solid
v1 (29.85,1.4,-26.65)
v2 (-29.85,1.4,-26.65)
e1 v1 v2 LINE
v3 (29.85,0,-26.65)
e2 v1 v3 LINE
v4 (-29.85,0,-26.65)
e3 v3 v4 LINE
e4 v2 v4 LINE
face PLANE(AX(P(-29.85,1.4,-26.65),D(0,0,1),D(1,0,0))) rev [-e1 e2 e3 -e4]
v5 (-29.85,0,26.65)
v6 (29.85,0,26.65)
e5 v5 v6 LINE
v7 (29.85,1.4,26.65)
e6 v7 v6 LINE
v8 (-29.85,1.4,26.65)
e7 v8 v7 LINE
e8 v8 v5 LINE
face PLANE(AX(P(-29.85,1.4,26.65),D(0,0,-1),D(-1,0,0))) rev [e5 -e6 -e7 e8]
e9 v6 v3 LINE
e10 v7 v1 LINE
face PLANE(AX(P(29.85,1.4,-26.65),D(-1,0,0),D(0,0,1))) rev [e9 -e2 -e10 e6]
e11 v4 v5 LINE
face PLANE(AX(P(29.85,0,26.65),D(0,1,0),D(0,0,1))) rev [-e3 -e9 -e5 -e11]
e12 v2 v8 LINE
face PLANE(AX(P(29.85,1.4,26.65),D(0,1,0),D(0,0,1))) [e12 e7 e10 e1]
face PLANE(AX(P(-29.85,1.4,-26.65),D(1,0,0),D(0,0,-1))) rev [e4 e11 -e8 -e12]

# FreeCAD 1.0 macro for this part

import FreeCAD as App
import Part
import Sketcher

V = App.Vector
Q = App.Units.Quantity


def add_polygon(sketch, points):
    """Adds a closed chain of lines whose ends are joined by coincident constraints."""
    first, n = sketch.GeometryCount, len(points)
    for a, b in zip(points, points[1:] + points[:1]):
        sketch.addGeometry(Part.LineSegment(App.Vector(*a, 0), App.Vector(*b, 0)), False)
    for i in range(n):
        sketch.addConstraint(Sketcher.Constraint("Coincident", first + i, 2, first + (i + 1) % n, 1))

doc = App.newDocument("Part")
params = doc.addObject("Spreadsheet::Sheet", "Params")
for row, (alias, value) in enumerate([
    ("sketch1_width", "59.7 mm"),
    ("sketch1_height", "53.3 mm"),
    ("pad1_length", "1.4 mm"),
], start=1):
    params.set(f"A{row}", alias)
    params.set(f"B{row}", "=" + value)
    params.setAlias(f"B{row}", alias)

body = doc.addObject("PartDesign::Body", "Body")

sketch1 = body.newObject("Sketcher::SketchObject", "Sketch")
sketch1.AttachmentSupport = (doc.getObject("XZ_Plane"), [""])
sketch1.MapMode = "FlatFace"
add_polygon(sketch1, [(-29.85, -26.65), (-29.85, 26.65), (29.85, 26.65), (29.85, -26.65)])
sketch1.addConstraint([
    Sketcher.Constraint("Vertical", 0),
    Sketcher.Constraint("Horizontal", 1),
    Sketcher.Constraint("Vertical", 2),
    Sketcher.Constraint("Horizontal", 3),
    Sketcher.Constraint("Symmetric", 0, 2, 2, 2, -1, 1),
    Sketcher.Constraint("DistanceX", 1, 1, 1, 2, Q("59.7 mm")),
    Sketcher.Constraint("DistanceY", 0, 1, 0, 2, Q("53.3 mm")),
])
sketch1.setExpression("Constraints[9]", "Params.sketch1_width")
sketch1.setExpression("Constraints[10]", "Params.sketch1_height")
pad1 = body.newObject("PartDesign::Pad", "Pad")
pad1.Profile = sketch1
pad1.setExpression("Length", "Params.pad1_length")
pad1.Reversed = True

doc.recompute()
